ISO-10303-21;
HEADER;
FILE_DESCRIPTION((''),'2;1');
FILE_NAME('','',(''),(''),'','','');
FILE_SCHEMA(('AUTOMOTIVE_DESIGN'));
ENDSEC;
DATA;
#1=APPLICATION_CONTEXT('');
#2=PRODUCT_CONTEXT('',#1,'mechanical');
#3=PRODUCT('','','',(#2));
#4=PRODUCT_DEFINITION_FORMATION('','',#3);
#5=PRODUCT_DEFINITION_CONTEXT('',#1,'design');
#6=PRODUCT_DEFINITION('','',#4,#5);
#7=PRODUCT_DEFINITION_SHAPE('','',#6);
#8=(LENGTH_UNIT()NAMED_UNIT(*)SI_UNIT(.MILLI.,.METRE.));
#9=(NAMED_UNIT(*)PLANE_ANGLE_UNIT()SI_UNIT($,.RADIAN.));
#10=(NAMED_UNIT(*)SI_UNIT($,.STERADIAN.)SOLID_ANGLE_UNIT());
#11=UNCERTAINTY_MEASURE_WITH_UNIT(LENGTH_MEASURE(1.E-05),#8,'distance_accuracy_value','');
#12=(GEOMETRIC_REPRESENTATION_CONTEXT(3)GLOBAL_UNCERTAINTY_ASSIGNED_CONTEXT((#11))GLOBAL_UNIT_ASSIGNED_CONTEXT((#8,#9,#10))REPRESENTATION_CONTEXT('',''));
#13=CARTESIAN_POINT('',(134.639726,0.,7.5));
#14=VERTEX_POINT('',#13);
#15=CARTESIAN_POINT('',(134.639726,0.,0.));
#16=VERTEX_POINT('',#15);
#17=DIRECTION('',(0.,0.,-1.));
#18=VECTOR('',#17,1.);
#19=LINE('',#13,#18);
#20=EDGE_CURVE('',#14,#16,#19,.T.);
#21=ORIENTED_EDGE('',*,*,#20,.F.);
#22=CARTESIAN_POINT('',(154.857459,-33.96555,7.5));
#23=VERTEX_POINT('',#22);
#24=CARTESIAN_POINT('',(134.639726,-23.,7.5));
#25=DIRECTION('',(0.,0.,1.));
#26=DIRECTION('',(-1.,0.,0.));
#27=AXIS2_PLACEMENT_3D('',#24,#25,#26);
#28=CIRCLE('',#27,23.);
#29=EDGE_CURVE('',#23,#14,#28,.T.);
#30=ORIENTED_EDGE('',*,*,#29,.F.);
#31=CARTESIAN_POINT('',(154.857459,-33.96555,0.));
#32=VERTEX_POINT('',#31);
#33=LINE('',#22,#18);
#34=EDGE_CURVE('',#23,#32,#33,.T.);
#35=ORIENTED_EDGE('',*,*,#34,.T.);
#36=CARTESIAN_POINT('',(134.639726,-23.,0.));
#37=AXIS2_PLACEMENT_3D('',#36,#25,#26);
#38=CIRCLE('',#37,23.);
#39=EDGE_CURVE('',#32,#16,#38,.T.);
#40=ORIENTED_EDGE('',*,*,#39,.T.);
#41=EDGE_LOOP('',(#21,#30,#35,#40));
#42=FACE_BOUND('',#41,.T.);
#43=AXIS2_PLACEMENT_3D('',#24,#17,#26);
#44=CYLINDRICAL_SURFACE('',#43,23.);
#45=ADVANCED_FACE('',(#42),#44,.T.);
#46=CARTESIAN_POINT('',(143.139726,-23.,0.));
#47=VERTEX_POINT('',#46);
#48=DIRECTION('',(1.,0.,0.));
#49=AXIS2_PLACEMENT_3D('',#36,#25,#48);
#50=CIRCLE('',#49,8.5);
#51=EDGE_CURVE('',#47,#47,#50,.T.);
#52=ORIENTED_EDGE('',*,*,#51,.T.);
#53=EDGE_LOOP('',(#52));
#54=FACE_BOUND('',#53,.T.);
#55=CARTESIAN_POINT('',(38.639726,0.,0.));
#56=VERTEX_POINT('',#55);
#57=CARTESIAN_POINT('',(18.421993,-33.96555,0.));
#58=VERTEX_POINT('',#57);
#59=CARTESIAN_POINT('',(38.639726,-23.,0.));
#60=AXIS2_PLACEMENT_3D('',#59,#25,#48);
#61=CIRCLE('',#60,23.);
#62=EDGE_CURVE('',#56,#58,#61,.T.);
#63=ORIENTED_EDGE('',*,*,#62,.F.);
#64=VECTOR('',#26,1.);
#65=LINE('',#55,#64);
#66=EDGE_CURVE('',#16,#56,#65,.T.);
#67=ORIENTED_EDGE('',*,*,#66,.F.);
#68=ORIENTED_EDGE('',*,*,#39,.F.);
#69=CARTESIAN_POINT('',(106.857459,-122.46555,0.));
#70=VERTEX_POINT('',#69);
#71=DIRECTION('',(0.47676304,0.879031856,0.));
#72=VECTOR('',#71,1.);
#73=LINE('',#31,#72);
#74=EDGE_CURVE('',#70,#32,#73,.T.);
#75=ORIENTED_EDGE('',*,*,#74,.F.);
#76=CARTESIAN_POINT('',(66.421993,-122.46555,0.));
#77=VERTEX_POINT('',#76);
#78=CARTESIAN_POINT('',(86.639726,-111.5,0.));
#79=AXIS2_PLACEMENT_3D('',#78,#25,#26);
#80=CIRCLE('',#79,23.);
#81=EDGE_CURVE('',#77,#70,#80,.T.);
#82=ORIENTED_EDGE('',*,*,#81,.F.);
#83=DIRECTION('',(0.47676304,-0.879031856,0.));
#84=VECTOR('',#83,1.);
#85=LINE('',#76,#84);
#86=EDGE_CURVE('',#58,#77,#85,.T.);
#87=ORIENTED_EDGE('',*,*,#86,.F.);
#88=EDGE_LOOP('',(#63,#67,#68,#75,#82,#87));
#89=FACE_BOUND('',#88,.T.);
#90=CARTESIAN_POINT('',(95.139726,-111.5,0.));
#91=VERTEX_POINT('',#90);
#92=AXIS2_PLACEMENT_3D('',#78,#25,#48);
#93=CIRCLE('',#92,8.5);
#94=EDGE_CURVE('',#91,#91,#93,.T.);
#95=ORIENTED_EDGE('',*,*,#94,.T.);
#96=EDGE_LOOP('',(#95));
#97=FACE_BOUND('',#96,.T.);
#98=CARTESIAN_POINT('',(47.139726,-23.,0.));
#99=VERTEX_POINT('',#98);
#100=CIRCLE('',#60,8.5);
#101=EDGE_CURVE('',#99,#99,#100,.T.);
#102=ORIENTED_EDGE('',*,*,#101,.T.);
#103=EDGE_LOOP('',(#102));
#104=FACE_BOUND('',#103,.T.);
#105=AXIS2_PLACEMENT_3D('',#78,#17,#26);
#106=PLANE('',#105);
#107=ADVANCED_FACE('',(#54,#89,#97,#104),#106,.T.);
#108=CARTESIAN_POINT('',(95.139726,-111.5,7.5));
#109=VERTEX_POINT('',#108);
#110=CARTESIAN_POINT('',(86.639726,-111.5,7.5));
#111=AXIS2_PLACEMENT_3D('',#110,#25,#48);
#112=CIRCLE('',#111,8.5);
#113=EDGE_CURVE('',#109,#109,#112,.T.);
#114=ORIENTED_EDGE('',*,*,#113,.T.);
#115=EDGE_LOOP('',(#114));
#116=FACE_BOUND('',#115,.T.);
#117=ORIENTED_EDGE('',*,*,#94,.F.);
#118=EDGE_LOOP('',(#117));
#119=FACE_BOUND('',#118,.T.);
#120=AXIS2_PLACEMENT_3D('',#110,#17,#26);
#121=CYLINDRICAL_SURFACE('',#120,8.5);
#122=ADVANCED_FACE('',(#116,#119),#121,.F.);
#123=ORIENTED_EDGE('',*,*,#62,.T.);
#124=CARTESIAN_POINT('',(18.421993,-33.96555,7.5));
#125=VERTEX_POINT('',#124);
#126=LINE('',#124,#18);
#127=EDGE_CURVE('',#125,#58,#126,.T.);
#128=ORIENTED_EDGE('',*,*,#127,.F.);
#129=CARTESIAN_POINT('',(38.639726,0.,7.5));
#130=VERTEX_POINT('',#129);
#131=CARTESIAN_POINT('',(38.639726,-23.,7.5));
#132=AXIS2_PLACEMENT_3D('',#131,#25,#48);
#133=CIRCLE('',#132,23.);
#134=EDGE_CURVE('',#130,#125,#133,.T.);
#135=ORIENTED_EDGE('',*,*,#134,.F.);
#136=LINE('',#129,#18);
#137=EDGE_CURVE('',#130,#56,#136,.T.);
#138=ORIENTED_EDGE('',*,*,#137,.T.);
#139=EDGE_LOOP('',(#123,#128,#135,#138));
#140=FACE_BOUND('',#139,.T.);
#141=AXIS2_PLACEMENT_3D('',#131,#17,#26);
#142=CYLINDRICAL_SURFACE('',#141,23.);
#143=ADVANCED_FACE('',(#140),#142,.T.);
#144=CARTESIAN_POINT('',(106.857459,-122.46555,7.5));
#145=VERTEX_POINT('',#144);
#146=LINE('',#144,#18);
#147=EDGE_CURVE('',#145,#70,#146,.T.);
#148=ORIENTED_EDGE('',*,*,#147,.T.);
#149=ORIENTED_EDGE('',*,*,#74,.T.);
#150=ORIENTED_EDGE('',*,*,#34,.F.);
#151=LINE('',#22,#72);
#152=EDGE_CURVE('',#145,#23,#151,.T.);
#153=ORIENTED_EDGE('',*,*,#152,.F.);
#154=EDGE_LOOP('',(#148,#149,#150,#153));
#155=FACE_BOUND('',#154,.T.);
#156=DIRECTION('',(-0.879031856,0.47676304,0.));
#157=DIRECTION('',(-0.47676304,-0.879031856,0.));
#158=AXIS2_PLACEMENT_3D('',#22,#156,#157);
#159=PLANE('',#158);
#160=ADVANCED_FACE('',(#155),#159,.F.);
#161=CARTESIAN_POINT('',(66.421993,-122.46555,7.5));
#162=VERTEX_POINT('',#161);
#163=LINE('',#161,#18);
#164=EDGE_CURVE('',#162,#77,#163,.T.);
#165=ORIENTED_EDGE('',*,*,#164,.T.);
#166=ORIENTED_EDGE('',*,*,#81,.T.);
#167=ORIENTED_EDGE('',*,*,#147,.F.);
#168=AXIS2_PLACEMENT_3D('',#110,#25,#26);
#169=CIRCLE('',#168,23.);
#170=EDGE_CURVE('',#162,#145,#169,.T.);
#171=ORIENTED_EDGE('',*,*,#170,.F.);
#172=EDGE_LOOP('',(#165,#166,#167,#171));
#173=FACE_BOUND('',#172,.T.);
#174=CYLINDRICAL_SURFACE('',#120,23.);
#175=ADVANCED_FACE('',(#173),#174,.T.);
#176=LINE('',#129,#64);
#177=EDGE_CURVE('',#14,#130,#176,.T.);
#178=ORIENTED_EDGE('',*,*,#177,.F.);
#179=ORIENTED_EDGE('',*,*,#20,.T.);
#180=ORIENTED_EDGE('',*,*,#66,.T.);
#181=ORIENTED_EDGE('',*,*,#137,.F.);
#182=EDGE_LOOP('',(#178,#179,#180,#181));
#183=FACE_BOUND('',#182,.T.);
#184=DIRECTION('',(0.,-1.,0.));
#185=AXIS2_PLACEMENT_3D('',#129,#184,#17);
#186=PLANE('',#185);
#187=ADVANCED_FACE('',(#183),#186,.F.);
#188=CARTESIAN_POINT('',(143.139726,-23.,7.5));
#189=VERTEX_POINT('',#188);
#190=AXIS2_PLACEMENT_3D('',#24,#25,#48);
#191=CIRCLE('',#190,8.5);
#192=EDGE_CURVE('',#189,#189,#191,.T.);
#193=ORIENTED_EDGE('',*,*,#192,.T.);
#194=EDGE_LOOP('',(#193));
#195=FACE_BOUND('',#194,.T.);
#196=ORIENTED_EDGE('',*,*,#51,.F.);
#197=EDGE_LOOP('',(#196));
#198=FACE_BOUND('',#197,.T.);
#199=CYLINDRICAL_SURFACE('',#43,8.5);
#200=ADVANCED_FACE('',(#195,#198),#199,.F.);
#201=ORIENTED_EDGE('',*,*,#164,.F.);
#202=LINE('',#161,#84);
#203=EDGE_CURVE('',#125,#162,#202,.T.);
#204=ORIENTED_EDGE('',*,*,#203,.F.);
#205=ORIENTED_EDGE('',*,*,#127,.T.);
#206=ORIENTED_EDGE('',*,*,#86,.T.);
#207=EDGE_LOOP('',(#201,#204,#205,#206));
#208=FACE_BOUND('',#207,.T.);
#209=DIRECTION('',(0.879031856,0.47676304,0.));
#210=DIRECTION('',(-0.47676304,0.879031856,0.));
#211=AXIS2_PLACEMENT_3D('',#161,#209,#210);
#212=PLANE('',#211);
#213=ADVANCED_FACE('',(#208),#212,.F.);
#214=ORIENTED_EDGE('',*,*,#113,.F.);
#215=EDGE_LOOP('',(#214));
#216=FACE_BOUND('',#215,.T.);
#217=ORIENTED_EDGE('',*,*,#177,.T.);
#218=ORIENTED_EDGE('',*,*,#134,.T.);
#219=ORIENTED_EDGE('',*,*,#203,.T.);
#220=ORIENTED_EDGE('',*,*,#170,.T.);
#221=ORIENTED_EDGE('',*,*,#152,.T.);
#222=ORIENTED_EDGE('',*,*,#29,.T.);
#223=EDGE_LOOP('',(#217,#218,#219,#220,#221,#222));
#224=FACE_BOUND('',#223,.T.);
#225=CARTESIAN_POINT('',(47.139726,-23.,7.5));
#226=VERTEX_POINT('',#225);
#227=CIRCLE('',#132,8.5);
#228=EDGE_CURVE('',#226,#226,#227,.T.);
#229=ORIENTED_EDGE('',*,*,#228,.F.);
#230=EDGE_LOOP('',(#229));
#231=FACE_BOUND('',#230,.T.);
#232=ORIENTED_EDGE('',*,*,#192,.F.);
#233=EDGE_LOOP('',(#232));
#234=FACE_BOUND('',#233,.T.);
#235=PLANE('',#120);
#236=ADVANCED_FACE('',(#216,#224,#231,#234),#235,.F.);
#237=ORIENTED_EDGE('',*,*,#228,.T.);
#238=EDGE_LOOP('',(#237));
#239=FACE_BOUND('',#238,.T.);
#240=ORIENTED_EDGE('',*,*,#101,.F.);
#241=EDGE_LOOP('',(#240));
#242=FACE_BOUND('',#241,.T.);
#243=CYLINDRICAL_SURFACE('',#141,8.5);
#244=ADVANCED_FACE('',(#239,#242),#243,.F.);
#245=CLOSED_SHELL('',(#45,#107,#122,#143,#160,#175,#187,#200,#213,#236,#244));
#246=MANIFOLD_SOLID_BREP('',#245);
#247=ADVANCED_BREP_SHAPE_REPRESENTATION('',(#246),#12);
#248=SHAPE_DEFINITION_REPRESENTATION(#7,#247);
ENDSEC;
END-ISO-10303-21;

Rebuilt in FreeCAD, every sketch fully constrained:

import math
import FreeCAD as App
import Part
import Sketcher
from FreeCAD import Vector
Q = App.Units.Quantity

doc = App.newDocument("Part")
params = doc.addObject("Spreadsheet::Sheet", "Params")
for row, (alias, value) in enumerate([
    ("sketch1_diameter", "17 mm"),
    ("sketch1_radius", "23 mm"),
    ("sketch1_width", "96 mm"),
    ("pad1_length", "7.5 mm"),
], start=1):
    params.set(f"A{row}", alias)
    params.set(f"B{row}", "=" + value)
    params.setAlias(f"B{row}", alias)

body = doc.addObject("PartDesign::Body", "Body")

sketch1 = body.newObject("Sketcher::SketchObject", "Sketch")
sketch1.AttachmentSupport = (doc.getObject("XY_Plane"), [""])
sketch1.MapMode = "FlatFace"
sketch1.addGeometry([
    Part.LineSegment(Vector(134.639726, 0, 0), Vector(38.639726, 0, 0)),
    Part.ArcOfCircle(Part.Circle(Vector(38.639726, -23, 0), Vector(0, 0, 1), 23), math.radians(90), math.radians(208.474204)),
    Part.LineSegment(Vector(18.421993, -33.96555, 0), Vector(66.421993, -122.46555, 0)),
    Part.ArcOfCircle(Part.Circle(Vector(86.639726, -111.5, 0), Vector(0, 0, 1), 23), math.radians(-151.525796), math.radians(-28.474204)),
    Part.LineSegment(Vector(106.857459, -122.46555, 0), Vector(154.857459, -33.96555, 0)),
    Part.ArcOfCircle(Part.Circle(Vector(134.639726, -23, 0), Vector(0, 0, 1), 23), math.radians(-28.474204), math.radians(90)),
    Part.Circle(Vector(86.639726, -111.5, 0), Vector(0, 0, 1), 8.5),
    Part.Circle(Vector(134.639726, -23, 0), Vector(0, 0, 1), 8.5),
    Part.Circle(Vector(38.639726, -23, 0), Vector(0, 0, 1), 8.5),
], False)
sketch1.addConstraint([
    Sketcher.Constraint("Tangent", 0, 2, 1, 1),
    Sketcher.Constraint("Tangent", 1, 2, 2, 1),
    Sketcher.Constraint("Tangent", 2, 2, 3, 1),
    Sketcher.Constraint("Tangent", 3, 2, 4, 1),
    Sketcher.Constraint("Tangent", 4, 2, 5, 1),
    Sketcher.Constraint("Tangent", 5, 2, 0, 1),
    Sketcher.Constraint("Horizontal", 0),
    Sketcher.Constraint("Coincident", 6, 3, 3, 3),
    Sketcher.Constraint("Coincident", 7, 3, 5, 3),
    Sketcher.Constraint("Coincident", 8, 3, 1, 3),
    Sketcher.Constraint("Equal", 1, 3),
    Sketcher.Constraint("Equal", 3, 5),
    Sketcher.Constraint("Equal", 6, 7),
    Sketcher.Constraint("Equal", 7, 8),
    Sketcher.Constraint("PointOnObject", 0, 2, -1),
    Sketcher.Constraint("Horizontal", 2, 2, 3, 2),
    Sketcher.Constraint("Diameter", 6, Q("17 mm")),
    Sketcher.Constraint("Radius", 1, Q("23 mm")),
    Sketcher.Constraint("DistanceX", 0, 2, 0, 1, Q("96 mm")),
    Sketcher.Constraint("DistanceY", 3, 3, -1, 1, Q("111.5 mm")),
    Sketcher.Constraint("DistanceX", -1, 1, 3, 2, Q("106.857459 mm")),
])
sketch1.setExpression("Constraints[16]", "Params.sketch1_diameter")
sketch1.setExpression("Constraints[17]", "Params.sketch1_radius")
sketch1.setExpression("Constraints[18]", "Params.sketch1_width")
pad1 = body.newObject("PartDesign::Pad", "Pad")
pad1.Profile = sketch1
pad1.setExpression("Length", "Params.pad1_length")

doc.recompute()
